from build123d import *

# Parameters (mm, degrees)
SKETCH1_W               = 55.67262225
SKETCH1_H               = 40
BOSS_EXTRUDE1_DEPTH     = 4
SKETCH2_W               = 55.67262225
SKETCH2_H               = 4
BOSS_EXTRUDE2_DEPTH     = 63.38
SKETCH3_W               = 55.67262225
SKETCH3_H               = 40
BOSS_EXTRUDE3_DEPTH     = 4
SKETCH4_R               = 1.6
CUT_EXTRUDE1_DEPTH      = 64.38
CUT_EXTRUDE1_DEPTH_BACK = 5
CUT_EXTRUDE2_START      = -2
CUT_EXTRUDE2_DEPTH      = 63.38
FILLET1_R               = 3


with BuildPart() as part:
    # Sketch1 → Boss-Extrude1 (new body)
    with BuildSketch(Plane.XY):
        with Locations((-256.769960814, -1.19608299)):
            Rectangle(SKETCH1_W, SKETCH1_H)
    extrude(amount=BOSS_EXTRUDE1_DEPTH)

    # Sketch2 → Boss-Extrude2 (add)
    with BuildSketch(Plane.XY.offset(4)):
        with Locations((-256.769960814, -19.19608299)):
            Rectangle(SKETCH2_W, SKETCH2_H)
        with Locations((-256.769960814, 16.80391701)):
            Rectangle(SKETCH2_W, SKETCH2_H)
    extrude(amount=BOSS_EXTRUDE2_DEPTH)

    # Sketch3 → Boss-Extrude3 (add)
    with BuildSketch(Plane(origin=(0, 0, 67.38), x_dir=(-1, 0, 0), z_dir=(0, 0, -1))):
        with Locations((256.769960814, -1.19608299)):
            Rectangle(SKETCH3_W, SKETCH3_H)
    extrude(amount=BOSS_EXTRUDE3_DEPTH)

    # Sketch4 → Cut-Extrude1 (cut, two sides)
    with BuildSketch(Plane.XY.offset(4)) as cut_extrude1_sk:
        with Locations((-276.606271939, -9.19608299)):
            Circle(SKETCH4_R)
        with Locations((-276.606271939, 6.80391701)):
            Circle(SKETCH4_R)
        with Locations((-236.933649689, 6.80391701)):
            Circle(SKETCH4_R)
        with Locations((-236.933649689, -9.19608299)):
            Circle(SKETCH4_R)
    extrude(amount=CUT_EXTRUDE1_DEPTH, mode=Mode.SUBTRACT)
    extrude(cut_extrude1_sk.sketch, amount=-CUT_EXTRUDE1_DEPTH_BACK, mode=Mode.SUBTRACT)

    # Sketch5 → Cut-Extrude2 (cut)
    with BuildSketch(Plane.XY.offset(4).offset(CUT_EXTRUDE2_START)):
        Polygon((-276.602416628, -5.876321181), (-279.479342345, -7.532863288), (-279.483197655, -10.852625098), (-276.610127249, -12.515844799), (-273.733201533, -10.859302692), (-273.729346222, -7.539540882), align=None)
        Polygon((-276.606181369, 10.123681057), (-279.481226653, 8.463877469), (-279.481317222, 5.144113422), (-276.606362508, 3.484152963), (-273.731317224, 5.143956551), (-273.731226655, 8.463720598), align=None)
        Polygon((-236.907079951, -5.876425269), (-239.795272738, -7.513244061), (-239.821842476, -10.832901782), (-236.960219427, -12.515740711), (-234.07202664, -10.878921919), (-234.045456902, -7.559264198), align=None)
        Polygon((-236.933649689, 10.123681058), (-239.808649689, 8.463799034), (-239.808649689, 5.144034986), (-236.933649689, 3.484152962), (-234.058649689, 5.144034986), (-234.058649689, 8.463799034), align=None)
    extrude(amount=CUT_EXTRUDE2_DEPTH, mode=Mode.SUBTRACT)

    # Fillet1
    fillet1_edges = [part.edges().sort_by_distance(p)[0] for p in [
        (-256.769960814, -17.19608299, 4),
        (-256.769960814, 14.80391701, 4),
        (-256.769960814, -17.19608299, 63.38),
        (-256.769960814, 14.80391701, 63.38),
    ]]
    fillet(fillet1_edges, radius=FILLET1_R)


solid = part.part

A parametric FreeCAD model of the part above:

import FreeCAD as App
import Part
import Sketcher

V = App.Vector
Q = App.Units.Quantity


def edges_at(feature, points):
    """Names of the edges that pass closest to the given points."""
    edges = feature.Shape.Edges
    near = lambda p: min(range(len(edges)), key=lambda i: edges[i].distToShape(Part.Vertex(*p))[0])
    return sorted({f"Edge{near(p) + 1}" for p in points})

doc = App.newDocument("Part")
body = doc.addObject("PartDesign::Body", "Body")

sketch1 = body.newObject("Sketcher::SketchObject", "Sketch")
sketch1.AttachmentSupport = (doc.getObject("XY_Plane"), [""])
sketch1.MapMode = "FlatFace"
sketch1.addGeometry(Part.LineSegment(V(-285, 19, 0), V(-285, -21, 0)), False)
sketch1.addGeometry(Part.LineSegment(V(-285, -21, 0), V(-229, -21, 0)), False)
sketch1.addGeometry(Part.LineSegment(V(-229, -21, 0), V(-229, 19, 0)), False)
sketch1.addGeometry(Part.LineSegment(V(-229, 19, 0), V(-285, 19, 0)), False)
sketch1.addConstraint(Sketcher.Constraint("Coincident", 0, 2, 1, 1))
sketch1.addConstraint(Sketcher.Constraint("Coincident", 1, 2, 2, 1))
sketch1.addConstraint(Sketcher.Constraint("Coincident", 2, 2, 3, 1))
sketch1.addConstraint(Sketcher.Constraint("Coincident", 3, 2, 0, 1))
sketch1.addConstraint(Sketcher.Constraint("Vertical", 0))
sketch1.addConstraint(Sketcher.Constraint("Horizontal", 1))
sketch1.addConstraint(Sketcher.Constraint("Vertical", 2))
sketch1.addConstraint(Sketcher.Constraint("Horizontal", 3))
sketch1.addConstraint(Sketcher.Constraint("DistanceY", 0, 2, 0, 1, Q("40 mm")))
sketch1.addConstraint(Sketcher.Constraint("DistanceX", 1, 1, 1, 2, Q("55.672622 mm")))
sketch1.addConstraint(Sketcher.Constraint("DistanceX", 0, 2, -1, 1, Q("284.606272 mm")))
sketch1.addConstraint(Sketcher.Constraint("DistanceY", 0, 2, -1, 1, Q("21.196083 mm")))
pad1 = body.newObject("PartDesign::Pad", "Pad")
pad1.Profile = sketch1
pad1.Length = 4

sketch2 = body.newObject("Sketcher::SketchObject", "Sketch001")
sketch2.AttachmentSupport = (doc.getObject("XY_Plane"), [""])
sketch2.MapMode = "FlatFace"
sketch2.AttachmentOffset = App.Placement(V(0, 0, 4), App.Rotation())
sketch2.addGeometry(Part.LineSegment(V(-284.6, -17.2, 0), V(-284.6, -21.2, 0)), False)
sketch2.addGeometry(Part.LineSegment(V(-284.6, -21.2, 0), V(-228.9, -21.2, 0)), False)
sketch2.addGeometry(Part.LineSegment(V(-228.9, -21.2, 0), V(-228.9, -17.2, 0)), False)
sketch2.addGeometry(Part.LineSegment(V(-228.9, -17.2, 0), V(-284.6, -17.2, 0)), False)
sketch2.addGeometry(Part.LineSegment(V(-284.6, 18.8, 0), V(-284.6, 14.8, 0)), False)
sketch2.addGeometry(Part.LineSegment(V(-284.6, 14.8, 0), V(-228.9, 14.8, 0)), False)
sketch2.addGeometry(Part.LineSegment(V(-228.9, 14.8, 0), V(-228.9, 18.8, 0)), False)
sketch2.addGeometry(Part.LineSegment(V(-228.9, 18.8, 0), V(-284.6, 18.8, 0)), False)
sketch2.addConstraint(Sketcher.Constraint("Coincident", 0, 2, 1, 1))
sketch2.addConstraint(Sketcher.Constraint("Coincident", 1, 2, 2, 1))
sketch2.addConstraint(Sketcher.Constraint("Coincident", 2, 2, 3, 1))
sketch2.addConstraint(Sketcher.Constraint("Coincident", 3, 2, 0, 1))
sketch2.addConstraint(Sketcher.Constraint("Coincident", 4, 2, 5, 1))
sketch2.addConstraint(Sketcher.Constraint("Coincident", 5, 2, 6, 1))
sketch2.addConstraint(Sketcher.Constraint("Coincident", 6, 2, 7, 1))
sketch2.addConstraint(Sketcher.Constraint("Coincident", 7, 2, 4, 1))
sketch2.addConstraint(Sketcher.Constraint("Vertical", 0))
sketch2.addConstraint(Sketcher.Constraint("Horizontal", 1))
sketch2.addConstraint(Sketcher.Constraint("Vertical", 2))
sketch2.addConstraint(Sketcher.Constraint("Horizontal", 3))
sketch2.addConstraint(Sketcher.Constraint("Vertical", 4))
sketch2.addConstraint(Sketcher.Constraint("Horizontal", 5))
sketch2.addConstraint(Sketcher.Constraint("Vertical", 6))
sketch2.addConstraint(Sketcher.Constraint("Horizontal", 7))
sketch2.addConstraint(Sketcher.Constraint("Vertical", 3, 2, 4, 2))
sketch2.addConstraint(Sketcher.Constraint("Vertical", 2, 2, 5, 2))
sketch2.addConstraint(Sketcher.Constraint("Equal", 2, 4))
sketch2.addConstraint(Sketcher.Constraint("DistanceY", 0, 2, 0, 1, Q("4 mm")))
sketch2.addConstraint(Sketcher.Constraint("DistanceY", 3, 2, 4, 2, Q("32 mm")))
sketch2.addConstraint(Sketcher.Constraint("DistanceX", 1, 1, 1, 2, Q("55.672622 mm")))
sketch2.addConstraint(Sketcher.Constraint("DistanceX", 0, 2, -1, 1, Q("284.606272 mm")))
sketch2.addConstraint(Sketcher.Constraint("DistanceY", 0, 2, -1, 1, Q("21.196083 mm")))
pad2 = body.newObject("PartDesign::Pad", "Pad001")
pad2.Profile = sketch2
pad2.Length = 63.38

sketch3 = body.newObject("Sketcher::SketchObject", "Sketch002")
sketch3.AttachmentSupport = (doc.getObject("XY_Plane"), [""])
sketch3.MapMode = "FlatFace"
sketch3.AttachmentOffset = App.Placement(V(0, 0, 67.38), App.Rotation())
sketch3.addGeometry(Part.LineSegment(V(-229, 19, 0), V(-229, -21, 0)), False)
sketch3.addGeometry(Part.LineSegment(V(-229, -21, 0), V(-285, -21, 0)), False)
sketch3.addGeometry(Part.LineSegment(V(-285, -21, 0), V(-285, 19, 0)), False)
sketch3.addGeometry(Part.LineSegment(V(-285, 19, 0), V(-229, 19, 0)), False)
sketch3.addConstraint(Sketcher.Constraint("Coincident", 0, 2, 1, 1))
sketch3.addConstraint(Sketcher.Constraint("Coincident", 1, 2, 2, 1))
sketch3.addConstraint(Sketcher.Constraint("Coincident", 2, 2, 3, 1))
sketch3.addConstraint(Sketcher.Constraint("Coincident", 3, 2, 0, 1))
sketch3.addConstraint(Sketcher.Constraint("Vertical", 0))
sketch3.addConstraint(Sketcher.Constraint("Horizontal", 1))
sketch3.addConstraint(Sketcher.Constraint("Vertical", 2))
sketch3.addConstraint(Sketcher.Constraint("Horizontal", 3))
sketch3.addConstraint(Sketcher.Constraint("DistanceY", 0, 2, 0, 1, Q("40 mm")))
sketch3.addConstraint(Sketcher.Constraint("DistanceX", 1, 2, 1, 1, Q("55.672622 mm")))
sketch3.addConstraint(Sketcher.Constraint("DistanceX", 0, 2, -1, 1, Q("228.93365 mm")))
sketch3.addConstraint(Sketcher.Constraint("DistanceY", 0, 2, -1, 1, Q("21.196083 mm")))
pad3 = body.newObject("PartDesign::Pad", "Pad002")
pad3.Profile = sketch3
pad3.Length = 4
pad3.Reversed = True

sketch4 = body.newObject("Sketcher::SketchObject", "Sketch003")
sketch4.AttachmentSupport = (doc.getObject("XY_Plane"), [""])
sketch4.MapMode = "FlatFace"
sketch4.AttachmentOffset = App.Placement(V(0, 0, 4), App.Rotation())
sketch4.addGeometry(Part.Circle(V(-276.6, -9.2, 0), V(0, 0, 1), 1.6), False)
sketch4.addGeometry(Part.Circle(V(-276.6, 6.8, 0), V(0, 0, 1), 1.6), False)
sketch4.addGeometry(Part.Circle(V(-236.9, 6.8, 0), V(0, 0, 1), 1.6), False)
sketch4.addGeometry(Part.Circle(V(-236.9, -9.2, 0), V(0, 0, 1), 1.6), False)
sketch4.addConstraint(Sketcher.Constraint("Equal", 0, 1))
sketch4.addConstraint(Sketcher.Constraint("Equal", 1, 2))
sketch4.addConstraint(Sketcher.Constraint("Equal", 2, 3))
sketch4.addConstraint(Sketcher.Constraint("Horizontal", 1, 3, 2, 3))
sketch4.addConstraint(Sketcher.Constraint("Horizontal", 0, 3, 3, 3))
sketch4.addConstraint(Sketcher.Constraint("Vertical", 0, 3, 1, 3))
sketch4.addConstraint(Sketcher.Constraint("Vertical", 2, 3, 3, 3))
sketch4.addConstraint(Sketcher.Constraint("Diameter", 0, Q("3.2 mm")))
sketch4.addConstraint(Sketcher.Constraint("DistanceY", 0, 3, 1, 3, Q("16 mm")))
sketch4.addConstraint(Sketcher.Constraint("DistanceX", 0, 3, -1, 1, Q("276.606272 mm")))
sketch4.addConstraint(Sketcher.Constraint("DistanceX", 2, 3, -1, 1, Q("236.93365 mm")))
sketch4.addConstraint(Sketcher.Constraint("DistanceY", 0, 3, -1, 1, Q("9.196083 mm")))
pocket1 = body.newObject("PartDesign::Pocket", "Pocket")
pocket1.Profile = sketch4
pocket1.Type = "ThroughAll"
pocket1.Midplane = True

sketch5 = body.newObject("Sketcher::SketchObject", "Sketch004")
sketch5.AttachmentSupport = (doc.getObject("XY_Plane"), [""])
sketch5.MapMode = "FlatFace"
sketch5.AttachmentOffset = App.Placement(V(0, 0, 2), App.Rotation())
sketch5.addGeometry(Part.LineSegment(V(-276.602417, -5.876321, 0), V(-279.479342, -7.532863, 0)), False)
sketch5.addGeometry(Part.LineSegment(V(-279.479342, -7.532863, 0), V(-279.483198, -10.852625, 0)), False)
sketch5.addGeometry(Part.LineSegment(V(-279.483198, -10.852625, 0), V(-276.610127, -12.515845, 0)), False)
sketch5.addGeometry(Part.LineSegment(V(-276.610127, -12.515845, 0), V(-273.733202, -10.859303, 0)), False)
sketch5.addGeometry(Part.LineSegment(V(-273.733202, -10.859303, 0), V(-273.729346, -7.539541, 0)), False)
sketch5.addGeometry(Part.LineSegment(V(-273.729346, -7.539541, 0), V(-276.602417, -5.876321, 0)), False)
sketch5.addGeometry(Part.LineSegment(V(-276.606181, 10.123681, 0), V(-279.481227, 8.463877, 0)), False)
sketch5.addGeometry(Part.LineSegment(V(-279.481227, 8.463877, 0), V(-279.481317, 5.144113, 0)), False)
sketch5.addGeometry(Part.LineSegment(V(-279.481317, 5.144113, 0), V(-276.606363, 3.484153, 0)), False)
sketch5.addGeometry(Part.LineSegment(V(-276.606363, 3.484153, 0), V(-273.731317, 5.143957, 0)), False)
sketch5.addGeometry(Part.LineSegment(V(-273.731317, 5.143957, 0), V(-273.731227, 8.463721, 0)), False)
sketch5.addGeometry(Part.LineSegment(V(-273.731227, 8.463721, 0), V(-276.606181, 10.123681, 0)), False)
sketch5.addGeometry(Part.LineSegment(V(-236.90708, -5.876425, 0), V(-239.795273, -7.513244, 0)), False)
sketch5.addGeometry(Part.LineSegment(V(-239.795273, -7.513244, 0), V(-239.821842, -10.832902, 0)), False)
sketch5.addGeometry(Part.LineSegment(V(-239.821842, -10.832902, 0), V(-236.960219, -12.515741, 0)), False)
sketch5.addGeometry(Part.LineSegment(V(-236.960219, -12.515741, 0), V(-234.072027, -10.878922, 0)), False)
sketch5.addGeometry(Part.LineSegment(V(-234.072027, -10.878922, 0), V(-234.045457, -7.559264, 0)), False)
sketch5.addGeometry(Part.LineSegment(V(-234.045457, -7.559264, 0), V(-236.90708, -5.876425, 0)), False)
sketch5.addGeometry(Part.LineSegment(V(-236.93365, 10.123681, 0), V(-239.80865, 8.463799, 0)), False)
sketch5.addGeometry(Part.LineSegment(V(-239.80865, 8.463799, 0), V(-239.80865, 5.144035, 0)), False)
sketch5.addGeometry(Part.LineSegment(V(-239.80865, 5.144035, 0), V(-236.93365, 3.484153, 0)), False)
sketch5.addGeometry(Part.LineSegment(V(-236.93365, 3.484153, 0), V(-234.05865, 5.144035, 0)), False)
sketch5.addGeometry(Part.LineSegment(V(-234.05865, 5.144035, 0), V(-234.05865, 8.463799, 0)), False)
sketch5.addGeometry(Part.LineSegment(V(-234.05865, 8.463799, 0), V(-236.93365, 10.123681, 0)), False)
sketch5.addConstraint(Sketcher.Constraint("Coincident", 0, 2, 1, 1))
sketch5.addConstraint(Sketcher.Constraint("Coincident", 1, 2, 2, 1))
sketch5.addConstraint(Sketcher.Constraint("Coincident", 2, 2, 3, 1))
sketch5.addConstraint(Sketcher.Constraint("Coincident", 3, 2, 4, 1))
sketch5.addConstraint(Sketcher.Constraint("Coincident", 4, 2, 5, 1))
sketch5.addConstraint(Sketcher.Constraint("Coincident", 5, 2, 0, 1))
sketch5.addConstraint(Sketcher.Constraint("Coincident", 6, 2, 7, 1))
sketch5.addConstraint(Sketcher.Constraint("Coincident", 7, 2, 8, 1))
sketch5.addConstraint(Sketcher.Constraint("Coincident", 8, 2, 9, 1))
sketch5.addConstraint(Sketcher.Constraint("Coincident", 9, 2, 10, 1))
sketch5.addConstraint(Sketcher.Constraint("Coincident", 10, 2, 11, 1))
sketch5.addConstraint(Sketcher.Constraint("Coincident", 11, 2, 6, 1))
sketch5.addConstraint(Sketcher.Constraint("Coincident", 12, 2, 13, 1))
sketch5.addConstraint(Sketcher.Constraint("Coincident", 13, 2, 14, 1))
sketch5.addConstraint(Sketcher.Constraint("Coincident", 14, 2, 15, 1))
sketch5.addConstraint(Sketcher.Constraint("Coincident", 15, 2, 16, 1))
sketch5.addConstraint(Sketcher.Constraint("Coincident", 16, 2, 17, 1))
sketch5.addConstraint(Sketcher.Constraint("Coincident", 17, 2, 12, 1))
sketch5.addConstraint(Sketcher.Constraint("Coincident", 18, 2, 19, 1))
sketch5.addConstraint(Sketcher.Constraint("Coincident", 19, 2, 20, 1))
sketch5.addConstraint(Sketcher.Constraint("Coincident", 20, 2, 21, 1))
sketch5.addConstraint(Sketcher.Constraint("Coincident", 21, 2, 22, 1))
sketch5.addConstraint(Sketcher.Constraint("Coincident", 22, 2, 23, 1))
sketch5.addConstraint(Sketcher.Constraint("Coincident", 23, 2, 18, 1))
sketch5.addConstraint(Sketcher.Constraint("Vertical", 19))
sketch5.addConstraint(Sketcher.Constraint("Vertical", 22))
sketch5.addConstraint(Sketcher.Constraint("DistanceX", 7, 2, 9, 2, Q("5.75 mm")))
sketch5.addConstraint(Sketcher.Constraint("DistanceX", 6, 2, 10, 2, Q("5.75 mm")))
sketch5.addConstraint(Sketcher.Constraint("DistanceX", 19, 2, 21, 2, Q("5.75 mm")))
sketch5.addConstraint(Sketcher.Constraint("DistanceX", 19, 2, 20, 2, Q("2.875 mm")))
sketch5.addConstraint(Sketcher.Constraint("DistanceX", 18, 2, 23, 2, Q("2.875 mm")))
sketch5.addConstraint(Sketcher.Constraint("DistanceX", 3, 2, -1, 1, Q("273.733202 mm")))
sketch5.addConstraint(Sketcher.Constraint("DistanceY", 13, 2, -1, 1, Q("10.832902 mm")))
sketch5.addConstraint(Sketcher.Constraint("DistanceY", -1, 1, 18, 2, Q("8.463799 mm")))
sketch5.addConstraint(Sketcher.Constraint("DistanceY", -1, 1, 22, 2, Q("8.463799 mm")))
sketch5.addConstraint(Sketcher.Constraint("DistanceY", 5, 2, 6, 2, Q("14.340199 mm")))
sketch5.addConstraint(Sketcher.Constraint("DistanceX", 7, 2, 5, 2, Q("2.878901 mm")))
sketch5.addConstraint(Sketcher.Constraint("DistanceY", 12, 2, 9, 2, Q("12.657201 mm")))
sketch5.addConstraint(Sketcher.Constraint("DistanceY", 2, 2, 12, 2, Q("5.002601 mm")))
sketch5.addConstraint(Sketcher.Constraint("DistanceY", 3, 2, 13, 2, Q("0.026401 mm")))
sketch5.addConstraint(Sketcher.Constraint("DistanceY", 14, 2, 4, 2, Q("4.9762 mm")))
sketch5.addConstraint(Sketcher.Constraint("DistanceY", 16, 2, 19, 2, Q("12.703299 mm")))
sketch5.addConstraint(Sketcher.Constraint("DistanceY", 16, 2, 21, 2, Q("12.703299 mm")))
sketch5.addConstraint(Sketcher.Constraint("DistanceY", 19, 2, 19, 1, Q("3.319764 mm")))
sketch5.addConstraint(Sketcher.Constraint("DistanceY", 4, 2, -1, 1, Q("7.539541 mm")))
sketch5.addConstraint(Sketcher.Constraint("DistanceY", 5, 2, -1, 1, Q("5.876321 mm")))
sketch5.addConstraint(Sketcher.Constraint("DistanceY", -1, 1, 10, 2, Q("8.463721 mm")))
sketch5.addConstraint(Sketcher.Constraint("DistanceX", 11, 2, -1, 1, Q("276.606181 mm")))
sketch5.addConstraint(Sketcher.Constraint("DistanceY", -1, 1, 11, 2, Q("10.123681 mm")))
sketch5.addConstraint(Sketcher.Constraint("DistanceX", 14, 2, -1, 1, Q("236.960219 mm")))
sketch5.addConstraint(Sketcher.Constraint("DistanceY", 15, 2, -1, 1, Q("10.878922 mm")))
sketch5.addConstraint(Sketcher.Constraint("DistanceX", 17, 2, -1, 1, Q("236.90708 mm")))
sketch5.addConstraint(Sketcher.Constraint("DistanceX", 18, 2, -1, 1, Q("239.80865 mm")))
sketch5.addConstraint(Sketcher.Constraint("DistanceY", -1, 1, 23, 2, Q("10.123681 mm")))
sketch5.addConstraint(Sketcher.Constraint("DistanceY", 1, 2, 0, 2, Q("3.319762 mm")))
sketch5.addConstraint(Sketcher.Constraint("DistanceX", 1, 2, 2, 2, Q("2.87307 mm")))
sketch5.addConstraint(Sketcher.Constraint("DistanceY", 2, 2, 1, 2, Q("1.66322 mm")))
sketch5.addConstraint(Sketcher.Constraint("DistanceX", 0, 2, 3, 2, Q("5.746141 mm")))
sketch5.addConstraint(Sketcher.Constraint("DistanceY", 3, 2, 0, 2, Q("3.326439 mm")))
sketch5.addConstraint(Sketcher.Constraint("DistanceX", 2, 2, 4, 2, Q("2.880781 mm")))
sketch5.addConstraint(Sketcher.Constraint("DistanceX", 5, 2, 4, 2, Q("2.87307 mm")))
sketch5.addConstraint(Sketcher.Constraint("DistanceX", 6, 2, 5, 2, Q("2.87881 mm")))
sketch5.addConstraint(Sketcher.Constraint("DistanceY", 1, 2, 7, 2, Q("15.996739 mm")))
sketch5.addConstraint(Sketcher.Constraint("DistanceY", 8, 2, 7, 2, Q("1.65996 mm")))
sketch5.addConstraint(Sketcher.Constraint("DistanceX", 0, 2, 8, 2, Q("2.87298 mm")))
sketch5.addConstraint(Sketcher.Constraint("DistanceX", 3, 2, 12, 2, Q("33.937929 mm")))
sketch5.addConstraint(Sketcher.Constraint("DistanceX", 13, 2, 12, 2, Q("0.02657 mm")))
sketch5.addConstraint(Sketcher.Constraint("DistanceX", 4, 2, 15, 2, Q("39.65732 mm")))
sketch5.addConstraint(Sketcher.Constraint("DistanceX", 15, 2, 16, 2, Q("0.02657 mm")))
sketch5.addConstraint(Sketcher.Constraint("DistanceY", 12, 2, 17, 2, Q("1.636819 mm")))
sketch5.addConstraint(Sketcher.Constraint("DistanceY", 17, 2, 20, 2, Q("9.360578 mm")))
sketch5.addConstraint(Sketcher.Constraint("Distance", 0, Q("3.319764 mm")))
pocket2 = body.newObject("PartDesign::Pocket", "Pocket001")
pocket2.Profile = sketch5
pocket2.Length = 63.38
pocket2.Reversed = True
doc.recompute()

fillet = body.newObject("PartDesign::Fillet", "Fillet")
fillet.Base = (pocket2, edges_at(pocket2, [
    (-256.77, -17.196, 4),
    (-256.77, 14.804, 4),
    (-256.77, -17.196, 63.38),
    (-256.77, 14.804, 63.38),
]))
fillet.Radius = 3

doc.recompute()
